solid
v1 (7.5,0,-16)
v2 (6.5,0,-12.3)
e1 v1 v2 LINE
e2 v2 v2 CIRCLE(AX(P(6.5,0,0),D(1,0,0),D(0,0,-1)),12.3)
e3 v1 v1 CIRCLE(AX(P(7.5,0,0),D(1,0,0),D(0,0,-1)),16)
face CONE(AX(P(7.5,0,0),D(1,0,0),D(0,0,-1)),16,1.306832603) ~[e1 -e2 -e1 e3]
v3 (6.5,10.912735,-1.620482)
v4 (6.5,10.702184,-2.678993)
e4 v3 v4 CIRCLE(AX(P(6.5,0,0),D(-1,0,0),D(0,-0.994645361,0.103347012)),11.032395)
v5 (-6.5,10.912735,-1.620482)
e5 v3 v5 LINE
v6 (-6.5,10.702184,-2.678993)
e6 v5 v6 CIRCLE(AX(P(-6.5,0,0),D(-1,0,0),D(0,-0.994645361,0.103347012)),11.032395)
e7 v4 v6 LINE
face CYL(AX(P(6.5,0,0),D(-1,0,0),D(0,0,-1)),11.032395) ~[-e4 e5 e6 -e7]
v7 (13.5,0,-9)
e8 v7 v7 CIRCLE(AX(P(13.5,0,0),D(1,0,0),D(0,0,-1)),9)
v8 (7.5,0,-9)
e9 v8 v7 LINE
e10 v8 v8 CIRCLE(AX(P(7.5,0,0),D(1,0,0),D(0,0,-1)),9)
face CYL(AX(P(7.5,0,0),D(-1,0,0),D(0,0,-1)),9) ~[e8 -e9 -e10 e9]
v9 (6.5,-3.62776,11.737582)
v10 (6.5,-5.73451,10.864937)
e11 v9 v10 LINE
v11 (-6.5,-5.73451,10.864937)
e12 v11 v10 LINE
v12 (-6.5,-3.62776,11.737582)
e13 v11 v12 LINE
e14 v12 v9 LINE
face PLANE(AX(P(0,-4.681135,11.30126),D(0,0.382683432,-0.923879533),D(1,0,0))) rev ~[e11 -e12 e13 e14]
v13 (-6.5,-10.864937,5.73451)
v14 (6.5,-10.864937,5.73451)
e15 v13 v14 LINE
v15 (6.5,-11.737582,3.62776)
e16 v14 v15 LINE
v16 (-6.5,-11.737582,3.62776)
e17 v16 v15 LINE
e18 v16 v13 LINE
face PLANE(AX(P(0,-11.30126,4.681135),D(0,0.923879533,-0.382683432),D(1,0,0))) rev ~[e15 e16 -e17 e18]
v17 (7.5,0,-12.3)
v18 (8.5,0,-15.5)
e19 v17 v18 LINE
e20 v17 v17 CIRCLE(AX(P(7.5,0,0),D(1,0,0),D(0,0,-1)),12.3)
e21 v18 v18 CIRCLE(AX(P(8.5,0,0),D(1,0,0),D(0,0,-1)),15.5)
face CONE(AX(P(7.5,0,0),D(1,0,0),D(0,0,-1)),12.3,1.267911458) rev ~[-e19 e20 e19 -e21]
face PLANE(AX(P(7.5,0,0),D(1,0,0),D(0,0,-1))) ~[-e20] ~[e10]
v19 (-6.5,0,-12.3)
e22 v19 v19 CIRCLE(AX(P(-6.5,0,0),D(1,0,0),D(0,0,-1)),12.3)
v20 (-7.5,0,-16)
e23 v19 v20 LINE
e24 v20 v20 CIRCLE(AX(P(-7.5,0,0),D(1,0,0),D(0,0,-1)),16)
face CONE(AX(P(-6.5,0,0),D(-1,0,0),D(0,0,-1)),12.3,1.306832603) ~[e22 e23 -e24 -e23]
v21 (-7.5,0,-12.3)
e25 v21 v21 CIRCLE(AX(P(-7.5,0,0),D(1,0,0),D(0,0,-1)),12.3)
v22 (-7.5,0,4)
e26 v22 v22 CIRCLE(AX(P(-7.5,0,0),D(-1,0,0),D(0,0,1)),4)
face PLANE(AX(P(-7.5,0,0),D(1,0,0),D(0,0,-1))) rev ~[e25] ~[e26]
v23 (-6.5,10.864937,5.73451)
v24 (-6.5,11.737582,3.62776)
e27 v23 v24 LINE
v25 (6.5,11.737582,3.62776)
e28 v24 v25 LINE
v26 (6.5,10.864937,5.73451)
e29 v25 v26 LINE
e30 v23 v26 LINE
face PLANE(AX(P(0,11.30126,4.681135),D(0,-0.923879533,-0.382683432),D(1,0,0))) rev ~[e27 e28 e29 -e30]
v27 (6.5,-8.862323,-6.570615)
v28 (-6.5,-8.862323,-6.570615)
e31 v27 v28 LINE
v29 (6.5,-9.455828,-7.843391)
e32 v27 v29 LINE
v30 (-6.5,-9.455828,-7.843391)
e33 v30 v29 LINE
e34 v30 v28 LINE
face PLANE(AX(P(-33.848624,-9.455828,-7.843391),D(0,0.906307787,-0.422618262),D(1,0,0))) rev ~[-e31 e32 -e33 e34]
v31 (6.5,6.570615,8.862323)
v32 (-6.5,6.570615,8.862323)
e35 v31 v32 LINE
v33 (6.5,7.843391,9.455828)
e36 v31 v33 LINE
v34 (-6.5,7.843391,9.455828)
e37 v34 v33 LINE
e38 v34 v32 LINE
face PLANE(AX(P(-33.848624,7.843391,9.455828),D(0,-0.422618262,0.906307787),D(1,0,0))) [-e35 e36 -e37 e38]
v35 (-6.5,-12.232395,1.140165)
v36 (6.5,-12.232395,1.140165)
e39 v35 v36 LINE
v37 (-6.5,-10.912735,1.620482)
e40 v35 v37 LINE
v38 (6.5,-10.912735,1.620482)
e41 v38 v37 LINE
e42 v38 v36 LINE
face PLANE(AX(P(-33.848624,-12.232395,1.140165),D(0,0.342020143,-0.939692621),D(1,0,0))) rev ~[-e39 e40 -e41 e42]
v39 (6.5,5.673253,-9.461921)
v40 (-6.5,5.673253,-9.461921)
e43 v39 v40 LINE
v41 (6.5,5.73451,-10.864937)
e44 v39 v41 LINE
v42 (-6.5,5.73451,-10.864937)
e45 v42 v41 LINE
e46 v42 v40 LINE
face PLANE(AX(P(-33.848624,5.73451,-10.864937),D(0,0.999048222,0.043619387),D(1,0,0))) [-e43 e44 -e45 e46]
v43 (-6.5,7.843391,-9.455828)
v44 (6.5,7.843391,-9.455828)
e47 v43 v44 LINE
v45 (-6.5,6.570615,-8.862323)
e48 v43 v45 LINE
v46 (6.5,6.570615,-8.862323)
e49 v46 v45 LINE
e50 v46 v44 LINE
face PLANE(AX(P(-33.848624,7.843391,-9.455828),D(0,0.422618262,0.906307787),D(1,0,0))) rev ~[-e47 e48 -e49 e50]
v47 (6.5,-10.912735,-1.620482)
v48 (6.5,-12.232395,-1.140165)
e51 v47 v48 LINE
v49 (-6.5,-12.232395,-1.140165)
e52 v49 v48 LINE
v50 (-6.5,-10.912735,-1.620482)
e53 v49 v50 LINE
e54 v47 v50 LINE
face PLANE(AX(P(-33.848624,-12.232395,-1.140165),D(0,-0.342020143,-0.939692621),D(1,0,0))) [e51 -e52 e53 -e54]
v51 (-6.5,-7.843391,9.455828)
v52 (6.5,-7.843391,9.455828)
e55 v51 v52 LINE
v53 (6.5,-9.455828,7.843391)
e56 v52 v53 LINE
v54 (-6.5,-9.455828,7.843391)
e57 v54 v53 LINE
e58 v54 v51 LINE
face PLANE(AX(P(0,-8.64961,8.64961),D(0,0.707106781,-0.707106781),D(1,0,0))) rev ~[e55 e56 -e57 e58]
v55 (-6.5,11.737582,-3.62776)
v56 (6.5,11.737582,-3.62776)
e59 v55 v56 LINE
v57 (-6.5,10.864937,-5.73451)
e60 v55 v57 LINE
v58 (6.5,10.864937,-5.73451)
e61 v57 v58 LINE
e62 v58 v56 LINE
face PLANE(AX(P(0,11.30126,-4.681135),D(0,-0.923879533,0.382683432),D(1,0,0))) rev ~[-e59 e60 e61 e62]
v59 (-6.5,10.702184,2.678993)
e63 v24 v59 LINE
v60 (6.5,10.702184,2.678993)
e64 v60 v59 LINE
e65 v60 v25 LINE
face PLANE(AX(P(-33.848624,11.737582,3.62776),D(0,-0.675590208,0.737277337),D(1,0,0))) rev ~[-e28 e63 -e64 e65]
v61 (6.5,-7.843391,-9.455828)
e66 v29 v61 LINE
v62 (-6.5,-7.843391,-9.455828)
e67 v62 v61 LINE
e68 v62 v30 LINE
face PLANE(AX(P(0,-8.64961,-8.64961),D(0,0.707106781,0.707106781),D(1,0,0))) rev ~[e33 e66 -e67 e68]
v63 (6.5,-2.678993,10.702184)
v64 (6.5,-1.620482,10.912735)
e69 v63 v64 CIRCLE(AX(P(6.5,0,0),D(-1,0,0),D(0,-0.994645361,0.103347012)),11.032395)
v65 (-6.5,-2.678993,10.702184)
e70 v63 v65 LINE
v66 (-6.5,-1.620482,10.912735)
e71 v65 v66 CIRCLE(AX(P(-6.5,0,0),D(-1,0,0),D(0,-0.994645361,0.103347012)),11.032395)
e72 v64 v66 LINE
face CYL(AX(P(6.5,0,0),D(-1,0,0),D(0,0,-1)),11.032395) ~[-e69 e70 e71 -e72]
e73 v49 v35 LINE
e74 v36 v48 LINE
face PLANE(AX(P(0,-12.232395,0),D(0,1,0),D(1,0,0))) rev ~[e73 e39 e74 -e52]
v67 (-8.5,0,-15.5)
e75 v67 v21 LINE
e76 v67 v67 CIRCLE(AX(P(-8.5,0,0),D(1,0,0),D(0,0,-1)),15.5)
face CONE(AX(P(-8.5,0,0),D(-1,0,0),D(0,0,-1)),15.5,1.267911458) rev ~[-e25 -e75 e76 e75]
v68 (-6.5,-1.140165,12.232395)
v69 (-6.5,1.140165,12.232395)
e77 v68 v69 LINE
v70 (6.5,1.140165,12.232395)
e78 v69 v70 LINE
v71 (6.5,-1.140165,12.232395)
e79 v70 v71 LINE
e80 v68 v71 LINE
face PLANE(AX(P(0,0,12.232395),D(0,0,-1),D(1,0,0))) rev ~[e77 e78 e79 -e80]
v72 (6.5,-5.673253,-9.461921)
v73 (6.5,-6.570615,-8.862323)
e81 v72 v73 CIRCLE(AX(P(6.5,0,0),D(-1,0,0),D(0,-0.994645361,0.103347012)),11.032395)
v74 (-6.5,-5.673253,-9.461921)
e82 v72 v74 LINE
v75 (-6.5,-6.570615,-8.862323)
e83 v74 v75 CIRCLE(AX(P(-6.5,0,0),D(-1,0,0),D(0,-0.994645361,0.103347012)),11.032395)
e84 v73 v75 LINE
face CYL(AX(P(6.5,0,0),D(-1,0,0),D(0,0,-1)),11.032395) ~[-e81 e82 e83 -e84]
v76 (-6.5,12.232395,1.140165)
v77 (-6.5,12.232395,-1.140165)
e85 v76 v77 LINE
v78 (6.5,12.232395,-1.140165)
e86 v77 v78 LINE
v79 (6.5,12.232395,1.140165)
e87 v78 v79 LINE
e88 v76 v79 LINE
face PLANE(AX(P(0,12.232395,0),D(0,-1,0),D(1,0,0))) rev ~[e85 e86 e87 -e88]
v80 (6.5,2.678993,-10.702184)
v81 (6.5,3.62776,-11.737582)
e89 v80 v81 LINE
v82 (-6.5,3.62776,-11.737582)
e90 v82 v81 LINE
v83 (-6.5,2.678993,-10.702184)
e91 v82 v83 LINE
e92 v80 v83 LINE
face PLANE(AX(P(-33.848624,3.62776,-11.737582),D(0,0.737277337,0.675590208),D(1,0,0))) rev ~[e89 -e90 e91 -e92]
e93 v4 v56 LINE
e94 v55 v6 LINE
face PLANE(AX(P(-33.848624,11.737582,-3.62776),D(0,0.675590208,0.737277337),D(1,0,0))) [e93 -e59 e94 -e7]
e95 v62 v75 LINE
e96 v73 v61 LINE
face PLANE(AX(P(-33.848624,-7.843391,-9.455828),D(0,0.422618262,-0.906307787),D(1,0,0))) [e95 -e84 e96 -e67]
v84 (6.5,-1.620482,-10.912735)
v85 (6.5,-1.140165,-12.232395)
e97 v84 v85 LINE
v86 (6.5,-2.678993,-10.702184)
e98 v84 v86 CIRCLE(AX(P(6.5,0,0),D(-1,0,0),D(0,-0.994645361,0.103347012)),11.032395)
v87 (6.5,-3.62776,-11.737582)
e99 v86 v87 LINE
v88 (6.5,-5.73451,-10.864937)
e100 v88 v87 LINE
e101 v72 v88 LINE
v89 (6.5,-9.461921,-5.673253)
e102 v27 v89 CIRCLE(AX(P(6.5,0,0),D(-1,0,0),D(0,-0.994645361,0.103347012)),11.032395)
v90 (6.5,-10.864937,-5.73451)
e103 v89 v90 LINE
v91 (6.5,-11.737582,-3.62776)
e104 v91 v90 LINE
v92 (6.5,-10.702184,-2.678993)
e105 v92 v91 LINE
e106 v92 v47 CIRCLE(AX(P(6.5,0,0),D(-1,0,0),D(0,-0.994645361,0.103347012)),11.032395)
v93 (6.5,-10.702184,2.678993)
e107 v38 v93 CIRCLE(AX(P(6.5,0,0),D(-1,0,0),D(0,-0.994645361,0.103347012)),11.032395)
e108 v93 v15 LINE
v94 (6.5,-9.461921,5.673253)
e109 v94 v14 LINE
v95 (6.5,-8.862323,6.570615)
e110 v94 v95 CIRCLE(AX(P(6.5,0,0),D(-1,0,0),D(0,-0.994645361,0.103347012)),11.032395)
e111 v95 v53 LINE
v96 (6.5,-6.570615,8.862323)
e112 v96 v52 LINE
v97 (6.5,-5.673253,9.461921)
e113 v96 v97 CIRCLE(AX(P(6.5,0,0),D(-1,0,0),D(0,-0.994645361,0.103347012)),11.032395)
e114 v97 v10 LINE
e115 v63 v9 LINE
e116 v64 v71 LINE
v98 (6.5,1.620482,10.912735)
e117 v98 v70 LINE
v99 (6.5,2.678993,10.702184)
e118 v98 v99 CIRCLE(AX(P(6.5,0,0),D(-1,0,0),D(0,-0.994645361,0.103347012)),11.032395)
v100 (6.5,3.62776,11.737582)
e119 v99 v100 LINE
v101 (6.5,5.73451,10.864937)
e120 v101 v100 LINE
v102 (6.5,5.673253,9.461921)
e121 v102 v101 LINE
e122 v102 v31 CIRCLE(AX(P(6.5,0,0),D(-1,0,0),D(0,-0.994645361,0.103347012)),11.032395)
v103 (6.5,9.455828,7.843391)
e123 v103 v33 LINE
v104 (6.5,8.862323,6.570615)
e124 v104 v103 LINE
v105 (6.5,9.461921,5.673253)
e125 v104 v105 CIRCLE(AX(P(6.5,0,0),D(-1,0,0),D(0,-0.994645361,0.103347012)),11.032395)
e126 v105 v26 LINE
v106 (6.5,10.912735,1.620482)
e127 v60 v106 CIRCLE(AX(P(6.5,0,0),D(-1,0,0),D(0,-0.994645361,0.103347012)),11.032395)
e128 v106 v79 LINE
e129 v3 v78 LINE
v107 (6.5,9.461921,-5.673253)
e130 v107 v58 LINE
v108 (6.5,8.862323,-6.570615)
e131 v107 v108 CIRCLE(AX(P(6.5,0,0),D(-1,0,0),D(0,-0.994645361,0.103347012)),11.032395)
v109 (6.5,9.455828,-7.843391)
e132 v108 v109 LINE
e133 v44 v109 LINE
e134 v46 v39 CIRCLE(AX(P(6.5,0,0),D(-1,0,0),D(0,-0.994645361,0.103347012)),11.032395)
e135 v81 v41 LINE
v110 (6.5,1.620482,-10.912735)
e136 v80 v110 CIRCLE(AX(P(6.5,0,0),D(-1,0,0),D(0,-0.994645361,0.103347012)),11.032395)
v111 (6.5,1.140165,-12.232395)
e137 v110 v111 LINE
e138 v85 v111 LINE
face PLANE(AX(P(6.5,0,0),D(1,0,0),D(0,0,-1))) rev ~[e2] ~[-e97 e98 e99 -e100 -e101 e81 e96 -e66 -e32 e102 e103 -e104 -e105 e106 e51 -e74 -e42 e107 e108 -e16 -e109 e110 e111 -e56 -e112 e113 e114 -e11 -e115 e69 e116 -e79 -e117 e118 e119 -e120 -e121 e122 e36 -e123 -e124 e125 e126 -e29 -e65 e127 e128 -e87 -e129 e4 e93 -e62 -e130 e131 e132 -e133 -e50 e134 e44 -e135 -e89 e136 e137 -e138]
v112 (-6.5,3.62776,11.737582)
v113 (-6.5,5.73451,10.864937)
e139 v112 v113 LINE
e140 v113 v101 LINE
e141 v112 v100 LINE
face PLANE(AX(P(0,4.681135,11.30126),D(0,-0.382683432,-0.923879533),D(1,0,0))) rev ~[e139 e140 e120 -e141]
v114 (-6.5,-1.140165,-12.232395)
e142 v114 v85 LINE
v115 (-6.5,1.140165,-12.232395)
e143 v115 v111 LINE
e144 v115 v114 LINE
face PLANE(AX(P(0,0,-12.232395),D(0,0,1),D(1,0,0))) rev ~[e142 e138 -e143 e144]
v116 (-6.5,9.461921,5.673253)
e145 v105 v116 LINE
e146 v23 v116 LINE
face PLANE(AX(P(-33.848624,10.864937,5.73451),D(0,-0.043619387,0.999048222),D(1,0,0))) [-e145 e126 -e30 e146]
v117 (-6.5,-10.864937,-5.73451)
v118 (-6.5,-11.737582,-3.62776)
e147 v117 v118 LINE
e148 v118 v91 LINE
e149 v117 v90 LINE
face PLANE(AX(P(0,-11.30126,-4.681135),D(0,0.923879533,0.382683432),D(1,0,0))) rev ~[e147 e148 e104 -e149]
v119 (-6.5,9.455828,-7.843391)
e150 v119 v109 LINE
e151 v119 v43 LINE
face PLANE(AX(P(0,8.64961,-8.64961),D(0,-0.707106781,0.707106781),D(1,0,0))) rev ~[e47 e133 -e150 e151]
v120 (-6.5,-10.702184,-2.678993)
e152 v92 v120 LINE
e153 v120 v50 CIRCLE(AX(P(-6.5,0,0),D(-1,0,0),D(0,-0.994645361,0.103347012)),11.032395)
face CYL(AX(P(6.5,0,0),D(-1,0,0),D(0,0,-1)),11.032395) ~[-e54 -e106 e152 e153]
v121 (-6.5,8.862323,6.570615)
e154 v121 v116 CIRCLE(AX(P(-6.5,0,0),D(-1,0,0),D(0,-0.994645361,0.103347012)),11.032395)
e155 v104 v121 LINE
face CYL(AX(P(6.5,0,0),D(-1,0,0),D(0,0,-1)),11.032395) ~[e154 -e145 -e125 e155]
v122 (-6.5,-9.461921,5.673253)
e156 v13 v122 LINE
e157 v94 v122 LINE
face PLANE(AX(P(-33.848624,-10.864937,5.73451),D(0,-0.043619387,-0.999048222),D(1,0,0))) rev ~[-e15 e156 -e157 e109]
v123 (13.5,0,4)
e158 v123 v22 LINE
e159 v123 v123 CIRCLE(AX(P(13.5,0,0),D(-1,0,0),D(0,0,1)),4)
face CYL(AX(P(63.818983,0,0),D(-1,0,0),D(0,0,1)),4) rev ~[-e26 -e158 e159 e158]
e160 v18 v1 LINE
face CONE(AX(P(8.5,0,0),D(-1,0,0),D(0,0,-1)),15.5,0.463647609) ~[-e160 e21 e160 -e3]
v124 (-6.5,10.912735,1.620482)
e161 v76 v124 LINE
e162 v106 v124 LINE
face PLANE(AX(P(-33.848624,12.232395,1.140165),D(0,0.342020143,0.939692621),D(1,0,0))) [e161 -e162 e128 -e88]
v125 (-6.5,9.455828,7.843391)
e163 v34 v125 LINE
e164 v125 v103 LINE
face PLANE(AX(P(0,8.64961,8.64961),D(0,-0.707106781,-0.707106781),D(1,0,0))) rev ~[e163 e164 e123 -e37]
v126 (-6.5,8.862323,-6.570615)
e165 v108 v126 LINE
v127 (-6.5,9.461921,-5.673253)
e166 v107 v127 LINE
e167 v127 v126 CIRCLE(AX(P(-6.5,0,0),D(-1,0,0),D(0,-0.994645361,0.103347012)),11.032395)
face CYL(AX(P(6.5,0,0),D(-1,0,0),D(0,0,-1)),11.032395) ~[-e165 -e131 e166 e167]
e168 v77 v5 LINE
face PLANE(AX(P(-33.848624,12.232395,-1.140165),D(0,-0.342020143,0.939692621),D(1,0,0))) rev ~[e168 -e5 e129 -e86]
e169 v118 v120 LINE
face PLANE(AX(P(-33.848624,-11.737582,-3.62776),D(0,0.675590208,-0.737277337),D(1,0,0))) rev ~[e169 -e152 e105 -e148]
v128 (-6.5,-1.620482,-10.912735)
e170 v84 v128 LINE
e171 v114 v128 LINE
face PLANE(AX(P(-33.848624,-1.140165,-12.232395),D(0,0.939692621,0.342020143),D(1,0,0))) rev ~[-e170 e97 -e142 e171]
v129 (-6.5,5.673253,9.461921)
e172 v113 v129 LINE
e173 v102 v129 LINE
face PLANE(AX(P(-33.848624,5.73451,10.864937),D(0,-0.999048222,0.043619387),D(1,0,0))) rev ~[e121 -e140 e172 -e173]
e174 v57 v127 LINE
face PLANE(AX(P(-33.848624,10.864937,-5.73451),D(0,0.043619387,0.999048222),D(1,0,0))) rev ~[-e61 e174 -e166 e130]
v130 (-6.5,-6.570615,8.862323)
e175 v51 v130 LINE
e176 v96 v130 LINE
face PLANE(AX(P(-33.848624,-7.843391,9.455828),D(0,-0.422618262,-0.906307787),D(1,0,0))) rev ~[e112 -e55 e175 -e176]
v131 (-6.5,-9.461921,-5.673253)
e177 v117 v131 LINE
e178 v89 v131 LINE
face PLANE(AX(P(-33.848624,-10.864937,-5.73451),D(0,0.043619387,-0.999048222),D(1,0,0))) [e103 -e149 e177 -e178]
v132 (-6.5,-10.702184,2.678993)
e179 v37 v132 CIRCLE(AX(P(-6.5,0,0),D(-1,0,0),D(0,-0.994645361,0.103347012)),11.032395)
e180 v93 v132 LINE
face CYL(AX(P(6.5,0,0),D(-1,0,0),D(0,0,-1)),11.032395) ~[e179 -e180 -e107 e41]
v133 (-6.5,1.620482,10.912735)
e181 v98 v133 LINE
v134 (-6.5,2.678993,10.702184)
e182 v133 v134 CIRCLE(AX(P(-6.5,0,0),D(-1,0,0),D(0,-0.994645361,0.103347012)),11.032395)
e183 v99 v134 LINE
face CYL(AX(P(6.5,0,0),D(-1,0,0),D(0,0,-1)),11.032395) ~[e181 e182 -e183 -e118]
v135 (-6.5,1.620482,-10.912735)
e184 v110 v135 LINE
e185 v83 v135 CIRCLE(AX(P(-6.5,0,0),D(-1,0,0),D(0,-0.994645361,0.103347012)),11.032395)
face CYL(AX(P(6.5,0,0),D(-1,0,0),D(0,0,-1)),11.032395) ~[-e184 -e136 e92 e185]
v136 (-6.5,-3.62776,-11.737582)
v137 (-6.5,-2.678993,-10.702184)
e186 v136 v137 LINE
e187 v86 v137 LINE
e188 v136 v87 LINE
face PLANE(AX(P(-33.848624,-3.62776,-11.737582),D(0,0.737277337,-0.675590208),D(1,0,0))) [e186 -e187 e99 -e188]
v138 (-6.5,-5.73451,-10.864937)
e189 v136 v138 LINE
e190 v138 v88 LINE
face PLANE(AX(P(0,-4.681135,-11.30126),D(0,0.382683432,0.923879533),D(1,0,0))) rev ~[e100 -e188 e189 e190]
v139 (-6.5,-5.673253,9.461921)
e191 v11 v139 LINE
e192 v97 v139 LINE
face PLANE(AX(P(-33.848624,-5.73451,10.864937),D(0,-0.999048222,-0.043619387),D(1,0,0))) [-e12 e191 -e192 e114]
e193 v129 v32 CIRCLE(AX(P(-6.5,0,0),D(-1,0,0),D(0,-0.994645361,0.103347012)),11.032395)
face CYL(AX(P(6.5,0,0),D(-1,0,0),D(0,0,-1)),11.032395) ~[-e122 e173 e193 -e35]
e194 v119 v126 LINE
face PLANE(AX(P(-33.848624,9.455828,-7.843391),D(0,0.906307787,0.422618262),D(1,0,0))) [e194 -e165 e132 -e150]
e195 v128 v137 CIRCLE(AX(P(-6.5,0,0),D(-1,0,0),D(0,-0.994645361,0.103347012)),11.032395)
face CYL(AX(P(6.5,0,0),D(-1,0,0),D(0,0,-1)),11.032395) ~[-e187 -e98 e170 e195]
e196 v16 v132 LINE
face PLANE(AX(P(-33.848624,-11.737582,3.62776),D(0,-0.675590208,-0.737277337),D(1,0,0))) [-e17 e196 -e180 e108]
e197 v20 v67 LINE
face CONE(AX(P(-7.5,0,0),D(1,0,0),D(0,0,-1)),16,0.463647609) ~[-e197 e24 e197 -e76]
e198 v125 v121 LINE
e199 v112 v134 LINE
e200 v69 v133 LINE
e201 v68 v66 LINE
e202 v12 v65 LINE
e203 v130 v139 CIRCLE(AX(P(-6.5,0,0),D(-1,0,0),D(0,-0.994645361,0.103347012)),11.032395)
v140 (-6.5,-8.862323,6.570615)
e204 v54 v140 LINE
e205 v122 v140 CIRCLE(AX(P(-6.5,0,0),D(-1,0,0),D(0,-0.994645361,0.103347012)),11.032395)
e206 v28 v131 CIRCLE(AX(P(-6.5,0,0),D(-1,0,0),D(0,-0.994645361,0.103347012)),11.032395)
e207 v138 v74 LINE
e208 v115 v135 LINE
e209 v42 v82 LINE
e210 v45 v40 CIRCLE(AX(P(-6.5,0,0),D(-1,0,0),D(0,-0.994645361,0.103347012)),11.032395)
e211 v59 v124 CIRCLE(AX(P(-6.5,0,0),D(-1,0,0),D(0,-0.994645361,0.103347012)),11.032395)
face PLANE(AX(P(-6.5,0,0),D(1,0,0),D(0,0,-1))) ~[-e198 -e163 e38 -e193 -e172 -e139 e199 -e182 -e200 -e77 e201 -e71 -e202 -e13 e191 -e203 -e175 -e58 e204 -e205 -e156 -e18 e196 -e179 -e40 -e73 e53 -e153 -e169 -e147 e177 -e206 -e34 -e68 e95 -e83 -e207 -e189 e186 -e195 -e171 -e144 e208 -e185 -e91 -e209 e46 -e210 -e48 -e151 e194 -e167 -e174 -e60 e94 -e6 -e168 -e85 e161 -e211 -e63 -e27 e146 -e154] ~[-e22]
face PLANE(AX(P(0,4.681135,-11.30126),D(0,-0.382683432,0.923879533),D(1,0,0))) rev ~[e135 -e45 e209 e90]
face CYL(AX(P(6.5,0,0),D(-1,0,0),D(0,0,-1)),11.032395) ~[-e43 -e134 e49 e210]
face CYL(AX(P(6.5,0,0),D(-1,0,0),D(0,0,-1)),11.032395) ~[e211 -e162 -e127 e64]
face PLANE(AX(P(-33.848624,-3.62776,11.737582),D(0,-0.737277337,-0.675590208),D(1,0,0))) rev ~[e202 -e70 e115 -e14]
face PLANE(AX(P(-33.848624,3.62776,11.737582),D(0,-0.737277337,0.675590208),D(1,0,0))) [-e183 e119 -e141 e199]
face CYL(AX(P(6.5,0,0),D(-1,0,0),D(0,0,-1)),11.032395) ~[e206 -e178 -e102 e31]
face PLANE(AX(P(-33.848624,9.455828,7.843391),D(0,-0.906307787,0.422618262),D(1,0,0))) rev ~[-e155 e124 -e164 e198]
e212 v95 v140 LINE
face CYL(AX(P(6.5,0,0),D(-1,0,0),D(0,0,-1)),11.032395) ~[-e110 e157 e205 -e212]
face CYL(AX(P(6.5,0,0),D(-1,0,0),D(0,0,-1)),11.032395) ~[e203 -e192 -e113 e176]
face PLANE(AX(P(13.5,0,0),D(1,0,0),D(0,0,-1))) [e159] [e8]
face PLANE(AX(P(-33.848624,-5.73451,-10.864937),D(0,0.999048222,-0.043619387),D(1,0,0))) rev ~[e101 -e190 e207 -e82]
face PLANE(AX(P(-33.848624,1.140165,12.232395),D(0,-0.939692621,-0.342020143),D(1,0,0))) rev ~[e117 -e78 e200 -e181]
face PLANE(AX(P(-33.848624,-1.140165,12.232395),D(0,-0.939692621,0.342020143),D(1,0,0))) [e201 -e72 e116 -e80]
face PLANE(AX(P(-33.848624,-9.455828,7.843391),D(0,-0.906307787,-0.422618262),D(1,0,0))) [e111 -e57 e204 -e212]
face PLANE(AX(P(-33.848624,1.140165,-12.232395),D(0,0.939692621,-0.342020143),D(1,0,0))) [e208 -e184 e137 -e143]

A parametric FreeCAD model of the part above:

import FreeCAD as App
import Part
import Sketcher
from FreeCAD import Vector
Q = App.Units.Quantity


def faces_at(feature, points):
    """Names of the faces that lie closest to the given points."""
    faces = feature.Shape.Faces
    near = lambda p: min(range(len(faces)), key=lambda i: faces[i].distToShape(Part.Vertex(*p))[0])
    return sorted({f"Face{near(p) + 1}" for p in points})


def add_polygon(sketch, points):
    """Adds a closed chain of lines whose ends are joined by coincident constraints."""
    first, n = sketch.GeometryCount, len(points)
    for a, b in zip(points, points[1:] + points[:1]):
        sketch.addGeometry(Part.LineSegment(App.Vector(*a, 0), App.Vector(*b, 0)), False)
    for i in range(n):
        sketch.addConstraint(Sketcher.Constraint("Coincident", first + i, 2, first + (i + 1) % n, 1))

doc = App.newDocument("Part")
body = doc.addObject("PartDesign::Body", "Body")

# Sketch on XY plane
sketch1 = body.newObject("Sketcher::SketchObject", "Sketch")
sketch1.AttachmentSupport = (doc.getObject("XY_Plane"), [""])
sketch1.MapMode = "FlatFace"
add_polygon(sketch1, [(-7.5, 12.3), (-7.5, 0), (7.5, 0), (7.5, 12.3), (8.5, 15.5), (7.5, 16), (6.5, 12.3), (6.5, 11), (-6.5, 11), (-6.5, 12.3), (-7.5, 16), (-8.5, 15.5)])  # lines 0-11
sketch1.addConstraint(Sketcher.Constraint("Vertical", 0))
sketch1.addConstraint(Sketcher.Constraint("Horizontal", 1))
sketch1.addConstraint(Sketcher.Constraint("Vertical", 2))
sketch1.addConstraint(Sketcher.Constraint("Vertical", 6))
sketch1.addConstraint(Sketcher.Constraint("Horizontal", 7))
sketch1.addConstraint(Sketcher.Constraint("Vertical", 8))
sketch1.addConstraint(Sketcher.Constraint("Symmetric", 0, 2, 1, 2, -1, 1))
sketch1.addConstraint(Sketcher.Constraint("Symmetric", 5, 2, 8, 2, -2))
sketch1.addConstraint(Sketcher.Constraint("Symmetric", 4, 2, 9, 2, -2))
sketch1.addConstraint(Sketcher.Constraint("Symmetric", 3, 2, 10, 2, -2))
sketch1.addConstraint(Sketcher.Constraint("Horizontal", 2, 2, 5, 2))
sketch1.addConstraint(Sketcher.Constraint("Horizontal", 8, 2, 11, 2))
sketch1.addConstraint(Sketcher.Constraint("Vertical", 2, 2, 4, 2))
sketch1.addConstraint(Sketcher.Constraint("DistanceX", 1, 1, 1, 2, Q("15 mm")))
sketch1.addConstraint(Sketcher.Constraint("DistanceX", 7, 2, 7, 1, Q("13 mm")))
sketch1.addConstraint(Sketcher.Constraint("DistanceY", 0, 2, 0, 1, Q("12.3 mm")))
sketch1.addConstraint(Sketcher.Constraint("DistanceY", -1, 1, 4, 2, Q("16 mm")))
sketch1.addConstraint(Sketcher.Constraint("DistanceX", 2, 2, 3, 2, Q("1 mm")))
sketch1.addConstraint(Sketcher.Constraint("DistanceY", -1, 1, 3, 2, Q("15.5 mm")))
sketch1.addConstraint(Sketcher.Constraint("DistanceY", 6, 2, 6, 1, Q("1.267605 mm")))
revolution = body.newObject("PartDesign::Revolution", "Revolution")
revolution.Profile = sketch1
revolution.ReferenceAxis = (sketch1, ["H_Axis"])
revolution.Angle = 360

# Sketch on YZ plane
sketch2 = body.newObject("Sketcher::SketchObject", "Sketch001")
sketch2.AttachmentSupport = (doc.getObject("YZ_Plane"), [""])
sketch2.MapMode = "FlatFace"
sketch2.AttachmentOffset = App.Placement(Vector(0, 0, 7.5), App.Rotation())
sketch2.addGeometry(Part.Circle(Vector(0, 0, 0), Vector(0, 0, 1), 9), False)
sketch2.addConstraint(Sketcher.Constraint("Coincident", 0, 3, -1, 1))
sketch2.addConstraint(Sketcher.Constraint("Diameter", 0, Q("18 mm")))
pad1 = body.newObject("PartDesign::Pad", "Pad")
pad1.Profile = sketch2
pad1.Length = 6

# Sketch on YZ plane
sketch3 = body.newObject("Sketcher::SketchObject", "Sketch002")
sketch3.AttachmentSupport = (doc.getObject("YZ_Plane"), [""])
sketch3.MapMode = "FlatFace"
sketch3.AttachmentOffset = App.Placement(Vector(0, 0, 13.5), App.Rotation())
sketch3.addGeometry(Part.Circle(Vector(0, 0, 0), Vector(0, 0, 1), 4), False)
sketch3.addConstraint(Sketcher.Constraint("Coincident", 0, 3, -1, 1))
sketch3.addConstraint(Sketcher.Constraint("Diameter", 0, Q("8 mm")))
doc.recompute()
hole = body.newObject("PartDesign::Hole", "Hole")
hole.Profile = sketch3
hole.ThreadType = "None"
hole.Diameter = 8
hole.DepthType = "ThroughAll"

# Sketch on XZ plane
sketch4 = body.newObject("Sketcher::SketchObject", "Sketch003")
sketch4.AttachmentSupport = (doc.getObject("XZ_Plane"), [""])
sketch4.MapMode = "FlatFace"
sketch4.AttachmentOffset = App.Placement(Vector(0, 0, 12.232395), App.Rotation())
add_polygon(sketch4, [(-33.8, -1.1), (-33.8, 1.1), (33.8, 1.1), (33.8, -1.1)])  # lines 0-3
sketch4.addConstraint(Sketcher.Constraint("Vertical", 0))
sketch4.addConstraint(Sketcher.Constraint("Horizontal", 1))
sketch4.addConstraint(Sketcher.Constraint("Vertical", 2))
sketch4.addConstraint(Sketcher.Constraint("Horizontal", 3))
sketch4.addConstraint(Sketcher.Constraint("Symmetric", 0, 2, 2, 2, -1, 1))
sketch4.addConstraint(Sketcher.Constraint("DistanceX", 1, 1, 1, 2, Q("67.697249 mm")))
sketch4.addConstraint(Sketcher.Constraint("DistanceY", 0, 1, 0, 2, Q("2.28033 mm")))
pad2 = body.newObject("PartDesign::Pad", "Pad001")
pad2.Profile = sketch4
pad2.Type = "UpToFirst"
pad2.Reversed = True
doc.recompute()

datumplane = body.newObject("PartDesign::Plane", "DatumPlane")
datumplane.AttachmentSupport = (doc.getObject("XZ_Plane"), [""])
datumplane.MapMode = "FlatFace"
datumplane.AttachmentOffset = App.Placement(Vector(0, 0, 12.232395), App.Rotation())
draft = body.newObject("PartDesign::Draft", "Draft")
draft.Base = (pad2, faces_at(pad2, [(0, -11.603, -1.14), (0, -11.603, 1.14)]))
draft.NeutralPlane = (datumplane, [""])
draft.Angle = 20
draft.Reversed = False

# Sketch on XY plane
sketch5 = body.newObject("Sketcher::SketchObject", "Sketch004")
sketch5.AttachmentSupport = (doc.getObject("XY_Plane"), [""])
sketch5.MapMode = "FlatFace"
sketch5.AttachmentOffset = App.Placement(Vector(0, 0, -12.232395), App.Rotation())
add_polygon(sketch5, [(-33.8, 1.1), (-33.8, -1.1), (33.8, -1.1), (33.8, 1.1)])  # lines 0-3
sketch5.addConstraint(Sketcher.Constraint("Vertical", 0))
sketch5.addConstraint(Sketcher.Constraint("Horizontal", 1))
sketch5.addConstraint(Sketcher.Constraint("Vertical", 2))
sketch5.addConstraint(Sketcher.Constraint("Horizontal", 3))
sketch5.addConstraint(Sketcher.Constraint("Symmetric", 0, 2, 2, 2, -1, 1))
sketch5.addConstraint(Sketcher.Constraint("DistanceX", 1, 1, 1, 2, Q("67.697249 mm")))
sketch5.addConstraint(Sketcher.Constraint("DistanceY", 0, 2, 0, 1, Q("2.28033 mm")))
pad3 = body.newObject("PartDesign::Pad", "Pad002")
pad3.Profile = sketch5
pad3.Type = "UpToFirst"
doc.recompute()

datumplane2 = body.newObject("PartDesign::Plane", "DatumPlane001")
datumplane2.AttachmentSupport = (doc.getObject("XY_Plane"), [""])
datumplane2.MapMode = "FlatFace"
datumplane2.AttachmentOffset = App.Placement(Vector(0, 0, -12.232395), App.Rotation())
draft2 = body.newObject("PartDesign::Draft", "Draft001")
draft2.Base = (pad3, faces_at(pad3, [(0, 1.14, -11.603), (0, -1.14, -11.603)]))
draft2.NeutralPlane = (datumplane2, [""])
draft2.Angle = 20
draft2.Reversed = True

# Sketch on XZ plane
sketch6 = body.newObject("Sketcher::SketchObject", "Sketch005")
sketch6.AttachmentSupport = (doc.getObject("XZ_Plane"), [""])
sketch6.MapMode = "FlatFace"
sketch6.AttachmentOffset = App.Placement(Vector(0, 0, -12.232395), App.Rotation())
add_polygon(sketch6, [(-33.8, 1.1), (-33.8, -1.1), (33.8, -1.1), (33.8, 1.1)])  # lines 0-3
sketch6.addConstraint(Sketcher.Constraint("Vertical", 0))
sketch6.addConstraint(Sketcher.Constraint("Horizontal", 1))
sketch6.addConstraint(Sketcher.Constraint("Vertical", 2))
sketch6.addConstraint(Sketcher.Constraint("Horizontal", 3))
sketch6.addConstraint(Sketcher.Constraint("Symmetric", 0, 2, 2, 2, -1, 1))
sketch6.addConstraint(Sketcher.Constraint("DistanceX", 1, 1, 1, 2, Q("67.697249 mm")))
sketch6.addConstraint(Sketcher.Constraint("DistanceY", 0, 2, 0, 1, Q("2.28033 mm")))
pad4 = body.newObject("PartDesign::Pad", "Pad003")
pad4.Profile = sketch6
pad4.Type = "UpToFirst"
doc.recompute()

datumplane3 = body.newObject("PartDesign::Plane", "DatumPlane002")
datumplane3.AttachmentSupport = (doc.getObject("XZ_Plane"), [""])
datumplane3.MapMode = "FlatFace"
datumplane3.AttachmentOffset = App.Placement(Vector(0, 0, -12.232395), App.Rotation())
draft3 = body.newObject("PartDesign::Draft", "Draft002")
draft3.Base = (pad4, faces_at(pad4, [(0, 11.603, 1.14), (0, 11.603, -1.14)]))
draft3.NeutralPlane = (datumplane3, [""])
draft3.Angle = 20
draft3.Reversed = True

# Sketch on XY plane
sketch7 = body.newObject("Sketcher::SketchObject", "Sketch006")
sketch7.AttachmentSupport = (doc.getObject("XY_Plane"), [""])
sketch7.MapMode = "FlatFace"
sketch7.AttachmentOffset = App.Placement(Vector(0, 0, 12.232395), App.Rotation())
add_polygon(sketch7, [(-33.8, -1.1), (-33.8, 1.1), (33.8, 1.1), (33.8, -1.1)])  # lines 0-3
sketch7.addConstraint(Sketcher.Constraint("Vertical", 0))
sketch7.addConstraint(Sketcher.Constraint("Horizontal", 1))
sketch7.addConstraint(Sketcher.Constraint("Vertical", 2))
sketch7.addConstraint(Sketcher.Constraint("Horizontal", 3))
sketch7.addConstraint(Sketcher.Constraint("Symmetric", 0, 2, 2, 2, -1, 1))
sketch7.addConstraint(Sketcher.Constraint("DistanceX", 1, 1, 1, 2, Q("67.697249 mm")))
sketch7.addConstraint(Sketcher.Constraint("DistanceY", 0, 1, 0, 2, Q("2.28033 mm")))
pad5 = body.newObject("PartDesign::Pad", "Pad004")
pad5.Profile = sketch7
pad5.Type = "UpToFirst"
pad5.Reversed = True
doc.recompute()

datumplane4 = body.newObject("PartDesign::Plane", "DatumPlane003")
datumplane4.AttachmentSupport = (doc.getObject("XY_Plane"), [""])
datumplane4.MapMode = "FlatFace"
datumplane4.AttachmentOffset = App.Placement(Vector(0, 0, 12.232395), App.Rotation())
draft4 = body.newObject("PartDesign::Draft", "Draft003")
draft4.Base = (pad5, faces_at(pad5, [(0, -1.14, 11.603), (0, 1.14, 11.603)]))
draft4.NeutralPlane = (datumplane4, [""])
draft4.Angle = 20
draft4.Reversed = False

# Sketch on an angled plane
sketch8 = body.newObject("Sketcher::SketchObject", "Sketch007")
sketch8.Placement = App.Placement(Vector(0, 8.64961, 8.64961), App.Rotation(Vector(1, 0, 0), Vector(0, -0.707106781, 0.707106781), Vector(0, -0.707106781, -0.707106781), "ZXY"))
add_polygon(sketch8, [(-33.8, 1.1), (-33.8, -1.1), (33.8, -1.1), (33.8, 1.1)])  # lines 0-3
sketch8.addConstraint(Sketcher.Constraint("Vertical", 0))
sketch8.addConstraint(Sketcher.Constraint("Horizontal", 1))
sketch8.addConstraint(Sketcher.Constraint("Vertical", 2))
sketch8.addConstraint(Sketcher.Constraint("Horizontal", 3))
sketch8.addConstraint(Sketcher.Constraint("Symmetric", 0, 2, 2, 2, -1, 1))
sketch8.addConstraint(Sketcher.Constraint("DistanceX", 1, 1, 1, 2, Q("67.697249 mm")))
sketch8.addConstraint(Sketcher.Constraint("DistanceY", 0, 2, 0, 1, Q("2.28033 mm")))
pad6 = body.newObject("PartDesign::Pad", "Pad005")
pad6.Profile = sketch8
pad6.Type = "UpToFirst"
doc.recompute()

datumplane5 = body.newObject("PartDesign::Plane", "DatumPlane004")
datumplane5.Placement = App.Placement(Vector(0, 8.64961, 8.64961), App.Rotation(Vector(0, 0.707106781, -0.707106781), Vector(-1, 0, 0), Vector(0, 0.707106781, 0.707106781), "ZXY"))
draft5 = body.newObject("PartDesign::Draft", "Draft004")
draft5.Base = (pad6, faces_at(pad6, [(0, 7.398, 9.011), (0, 9.011, 7.398)]))
draft5.NeutralPlane = (datumplane5, [""])
draft5.Angle = 20
draft5.Reversed = False

# Sketch on an angled plane
sketch9 = body.newObject("Sketcher::SketchObject", "Sketch008")
sketch9.Placement = App.Placement(Vector(0, 11.30126, 4.681135), App.Rotation(Vector(1, 0, 0), Vector(0, -0.382683432, 0.923879533), Vector(0, -0.923879533, -0.382683432), "ZXY"))
add_polygon(sketch9, [(-33.8, 1.1), (-33.8, -1.1), (33.8, -1.1), (33.8, 1.1)])  # lines 0-3
sketch9.addConstraint(Sketcher.Constraint("Vertical", 0))
sketch9.addConstraint(Sketcher.Constraint("Horizontal", 1))
sketch9.addConstraint(Sketcher.Constraint("Vertical", 2))
sketch9.addConstraint(Sketcher.Constraint("Horizontal", 3))
sketch9.addConstraint(Sketcher.Constraint("Symmetric", 0, 2, 2, 2, -1, 1))
sketch9.addConstraint(Sketcher.Constraint("DistanceX", 1, 1, 1, 2, Q("67.697249 mm")))
sketch9.addConstraint(Sketcher.Constraint("DistanceY", 0, 2, 0, 1, Q("2.28033 mm")))
pad7 = body.newObject("PartDesign::Pad", "Pad006")
pad7.Profile = sketch9
pad7.Type = "UpToFirst"
doc.recompute()

datumplane6 = body.newObject("PartDesign::Plane", "DatumPlane005")
datumplane6.Placement = App.Placement(Vector(0, 11.30126, 4.681135), App.Rotation(Vector(0, 0.382683432, -0.923879533), Vector(-1, 0, 0), Vector(0, 0.923879533, 0.382683432), "ZXY"))
draft6 = body.newObject("PartDesign::Draft", "Draft005")
draft6.Base = (pad7, faces_at(pad7, [(0, 10.283, 5.494), (0, 11.156, 3.387)]))
draft6.NeutralPlane = (datumplane6, [""])
draft6.Angle = 20
draft6.Reversed = False

# Sketch on an angled plane
sketch10 = body.newObject("Sketcher::SketchObject", "Sketch009")
sketch10.Placement = App.Placement(Vector(0, 4.681135, -11.30126), App.Rotation(Vector(1, 0, 0), Vector(0, 0.923879533, 0.382683432), Vector(0, -0.382683432, 0.923879533), "ZXY"))
add_polygon(sketch10, [(-33.8, 1.1), (-33.8, -1.1), (33.8, -1.1), (33.8, 1.1)])  # lines 0-3
sketch10.addConstraint(Sketcher.Constraint("Vertical", 0))
sketch10.addConstraint(Sketcher.Constraint("Horizontal", 1))
sketch10.addConstraint(Sketcher.Constraint("Vertical", 2))
sketch10.addConstraint(Sketcher.Constraint("Horizontal", 3))
sketch10.addConstraint(Sketcher.Constraint("Symmetric", 0, 2, 2, 2, -1, 1))
sketch10.addConstraint(Sketcher.Constraint("DistanceX", 1, 1, 1, 2, Q("67.697249 mm")))
sketch10.addConstraint(Sketcher.Constraint("DistanceY", 0, 2, 0, 1, Q("2.28033 mm")))
pad8 = body.newObject("PartDesign::Pad", "Pad007")
pad8.Profile = sketch10
pad8.Type = "UpToFirst"
doc.recompute()

datumplane7 = body.newObject("PartDesign::Plane", "DatumPlane006")
datumplane7.Placement = App.Placement(Vector(0, 4.681135, -11.30126), App.Rotation(Vector(0, -0.923879533, -0.382683432), Vector(-1, 0, 0), Vector(0, 0.382683432, -0.923879533), "ZXY"))
draft7 = body.newObject("PartDesign::Draft", "Draft006")
draft7.Base = (pad8, faces_at(pad8, [(0, 5.494, -10.283), (0, 3.387, -11.156)]))
draft7.NeutralPlane = (datumplane7, [""])
draft7.Angle = 20
draft7.Reversed = False

# Sketch on an angled plane
sketch11 = body.newObject("Sketcher::SketchObject", "Sketch010")
sketch11.Placement = App.Placement(Vector(0, 4.681135, 11.30126), App.Rotation(Vector(1, 0, 0), Vector(0, -0.923879533, 0.382683432), Vector(0, -0.382683432, -0.923879533), "ZXY"))
add_polygon(sketch11, [(-33.8, 1.1), (-33.8, -1.1), (33.8, -1.1), (33.8, 1.1)])  # lines 0-3
sketch11.addConstraint(Sketcher.Constraint("Vertical", 0))
sketch11.addConstraint(Sketcher.Constraint("Horizontal", 1))
sketch11.addConstraint(Sketcher.Constraint("Vertical", 2))
sketch11.addConstraint(Sketcher.Constraint("Horizontal", 3))
sketch11.addConstraint(Sketcher.Constraint("Symmetric", 0, 2, 2, 2, -1, 1))
sketch11.addConstraint(Sketcher.Constraint("DistanceX", 1, 1, 1, 2, Q("67.697249 mm")))
sketch11.addConstraint(Sketcher.Constraint("DistanceY", 0, 2, 0, 1, Q("2.28033 mm")))
pad9 = body.newObject("PartDesign::Pad", "Pad008")
pad9.Profile = sketch11
pad9.Type = "UpToFirst"
doc.recompute()

datumplane8 = body.newObject("PartDesign::Plane", "DatumPlane007")
datumplane8.Placement = App.Placement(Vector(0, 4.681135, 11.30126), App.Rotation(Vector(0, 0.923879533, -0.382683432), Vector(-1, 0, 0), Vector(0, 0.382683432, 0.923879533), "ZXY"))
draft8 = body.newObject("PartDesign::Draft", "Draft007")
draft8.Base = (pad9, faces_at(pad9, [(0, 3.387, 11.156), (0, 5.494, 10.283)]))
draft8.NeutralPlane = (datumplane8, [""])
draft8.Angle = 20
draft8.Reversed = False

# Sketch on an angled plane
sketch12 = body.newObject("Sketcher::SketchObject", "Sketch011")
sketch12.Placement = App.Placement(Vector(0, -8.64961, 8.64961), App.Rotation(Vector(1, 0, 0), Vector(0, -0.707106781, -0.707106781), Vector(0, 0.707106781, -0.707106781), "ZXY"))
add_polygon(sketch12, [(-33.8, 1.1), (-33.8, -1.1), (33.8, -1.1), (33.8, 1.1)])  # lines 0-3
sketch12.addConstraint(Sketcher.Constraint("Vertical", 0))
sketch12.addConstraint(Sketcher.Constraint("Horizontal", 1))
sketch12.addConstraint(Sketcher.Constraint("Vertical", 2))
sketch12.addConstraint(Sketcher.Constraint("Horizontal", 3))
sketch12.addConstraint(Sketcher.Constraint("Symmetric", 0, 2, 2, 2, -1, 1))
sketch12.addConstraint(Sketcher.Constraint("DistanceX", 1, 1, 1, 2, Q("67.697249 mm")))
sketch12.addConstraint(Sketcher.Constraint("DistanceY", 0, 2, 0, 1, Q("2.28033 mm")))
pad10 = body.newObject("PartDesign::Pad", "Pad009")
pad10.Profile = sketch12
pad10.Type = "UpToFirst"
doc.recompute()

datumplane9 = body.newObject("PartDesign::Plane", "DatumPlane008")
datumplane9.Placement = App.Placement(Vector(0, -8.64961, 8.64961), App.Rotation(Vector(0, 0.707106781, 0.707106781), Vector(-1, 0, 0), Vector(0, -0.707106781, 0.707106781), "ZXY"))
draft9 = body.newObject("PartDesign::Draft", "Draft008")
draft9.Base = (pad10, faces_at(pad10, [(0, -9.011, 7.398), (0, -7.398, 9.011)]))
draft9.NeutralPlane = (datumplane9, [""])
draft9.Angle = 20
draft9.Reversed = False

# Sketch on an angled plane
sketch13 = body.newObject("Sketcher::SketchObject", "Sketch012")
sketch13.Placement = App.Placement(Vector(0, 8.64961, -8.64961), App.Rotation(Vector(1, 0, 0), Vector(0, 0.707106781, 0.707106781), Vector(0, -0.707106781, 0.707106781), "ZXY"))
add_polygon(sketch13, [(-33.8, 1.1), (-33.8, -1.1), (33.8, -1.1), (33.8, 1.1)])  # lines 0-3
sketch13.addConstraint(Sketcher.Constraint("Vertical", 0))
sketch13.addConstraint(Sketcher.Constraint("Horizontal", 1))
sketch13.addConstraint(Sketcher.Constraint("Vertical", 2))
sketch13.addConstraint(Sketcher.Constraint("Horizontal", 3))
sketch13.addConstraint(Sketcher.Constraint("Symmetric", 0, 2, 2, 2, -1, 1))
sketch13.addConstraint(Sketcher.Constraint("DistanceX", 1, 1, 1, 2, Q("67.697249 mm")))
sketch13.addConstraint(Sketcher.Constraint("DistanceY", 0, 2, 0, 1, Q("2.28033 mm")))
pad11 = body.newObject("PartDesign::Pad", "Pad010")
pad11.Profile = sketch13
pad11.Type = "UpToFirst"
doc.recompute()

datumplane10 = body.newObject("PartDesign::Plane", "DatumPlane009")
datumplane10.Placement = App.Placement(Vector(0, 8.64961, -8.64961), App.Rotation(Vector(0, -0.707106781, -0.707106781), Vector(-1, 0, 0), Vector(0, 0.707106781, -0.707106781), "ZXY"))
draft10 = body.newObject("PartDesign::Draft", "Draft009")
draft10.Base = (pad11, faces_at(pad11, [(0, 9.011, -7.398), (0, 7.398, -9.011)]))
draft10.NeutralPlane = (datumplane10, [""])
draft10.Angle = 20
draft10.Reversed = False

# Sketch on an angled plane
sketch14 = body.newObject("Sketcher::SketchObject", "Sketch013")
sketch14.Placement = App.Placement(Vector(0, -8.64961, -8.64961), App.Rotation(Vector(1, 0, 0), Vector(0, 0.707106781, -0.707106781), Vector(0, 0.707106781, 0.707106781), "ZXY"))
add_polygon(sketch14, [(-33.8, 1.1), (-33.8, -1.1), (33.8, -1.1), (33.8, 1.1)])  # lines 0-3
sketch14.addConstraint(Sketcher.Constraint("Vertical", 0))
sketch14.addConstraint(Sketcher.Constraint("Horizontal", 1))
sketch14.addConstraint(Sketcher.Constraint("Vertical", 2))
sketch14.addConstraint(Sketcher.Constraint("Horizontal", 3))
sketch14.addConstraint(Sketcher.Constraint("Symmetric", 0, 2, 2, 2, -1, 1))
sketch14.addConstraint(Sketcher.Constraint("DistanceX", 1, 1, 1, 2, Q("67.697249 mm")))
sketch14.addConstraint(Sketcher.Constraint("DistanceY", 0, 2, 0, 1, Q("2.28033 mm")))
pad12 = body.newObject("PartDesign::Pad", "Pad011")
pad12.Profile = sketch14
pad12.Type = "UpToFirst"
doc.recompute()

datumplane11 = body.newObject("PartDesign::Plane", "DatumPlane010")
datumplane11.Placement = App.Placement(Vector(0, -8.64961, -8.64961), App.Rotation(Vector(0, -0.707106781, 0.707106781), Vector(-1, 0, 0), Vector(0, -0.707106781, -0.707106781), "ZXY"))
draft11 = body.newObject("PartDesign::Draft", "Draft010")
draft11.Base = (pad12, faces_at(pad12, [(0, -7.398, -9.011), (0, -9.011, -7.398)]))
draft11.NeutralPlane = (datumplane11, [""])
draft11.Angle = 20
draft11.Reversed = False

# Sketch on an angled plane
sketch15 = body.newObject("Sketcher::SketchObject", "Sketch014")
sketch15.Placement = App.Placement(Vector(0, 11.30126, -4.681135), App.Rotation(Vector(1, 0, 0), Vector(0, 0.382683432, 0.923879533), Vector(0, -0.923879533, 0.382683432), "ZXY"))
add_polygon(sketch15, [(-33.8, 1.1), (-33.8, -1.1), (33.8, -1.1), (33.8, 1.1)])  # lines 0-3
sketch15.addConstraint(Sketcher.Constraint("Vertical", 0))
sketch15.addConstraint(Sketcher.Constraint("Horizontal", 1))
sketch15.addConstraint(Sketcher.Constraint("Vertical", 2))
sketch15.addConstraint(Sketcher.Constraint("Horizontal", 3))
sketch15.addConstraint(Sketcher.Constraint("Symmetric", 0, 2, 2, 2, -1, 1))
sketch15.addConstraint(Sketcher.Constraint("DistanceX", 1, 1, 1, 2, Q("67.697249 mm")))
sketch15.addConstraint(Sketcher.Constraint("DistanceY", 0, 2, 0, 1, Q("2.28033 mm")))
pad13 = body.newObject("PartDesign::Pad", "Pad012")
pad13.Profile = sketch15
pad13.Type = "UpToFirst"
doc.recompute()

datumplane12 = body.newObject("PartDesign::Plane", "DatumPlane011")
datumplane12.Placement = App.Placement(Vector(0, 11.30126, -4.681135), App.Rotation(Vector(0, -0.382683432, -0.923879533), Vector(-1, 0, 0), Vector(0, 0.923879533, -0.382683432), "ZXY"))
draft12 = body.newObject("PartDesign::Draft", "Draft011")
draft12.Base = (pad13, faces_at(pad13, [(0, 11.156, -3.387), (0, 10.283, -5.494)]))
draft12.NeutralPlane = (datumplane12, [""])
draft12.Angle = 20
draft12.Reversed = False

# Sketch on an angled plane
sketch16 = body.newObject("Sketcher::SketchObject", "Sketch015")
sketch16.Placement = App.Placement(Vector(0, -11.30126, -4.681135), App.Rotation(Vector(1, 0, 0), Vector(0, 0.382683432, -0.923879533), Vector(0, 0.923879533, 0.382683432), "ZXY"))
add_polygon(sketch16, [(-33.8, 1.1), (-33.8, -1.1), (33.8, -1.1), (33.8, 1.1)])  # lines 0-3
sketch16.addConstraint(Sketcher.Constraint("Vertical", 0))
sketch16.addConstraint(Sketcher.Constraint("Horizontal", 1))
sketch16.addConstraint(Sketcher.Constraint("Vertical", 2))
sketch16.addConstraint(Sketcher.Constraint("Horizontal", 3))
sketch16.addConstraint(Sketcher.Constraint("Symmetric", 0, 2, 2, 2, -1, 1))
sketch16.addConstraint(Sketcher.Constraint("DistanceX", 1, 1, 1, 2, Q("67.697249 mm")))
sketch16.addConstraint(Sketcher.Constraint("DistanceY", 0, 2, 0, 1, Q("2.28033 mm")))
pad14 = body.newObject("PartDesign::Pad", "Pad013")
pad14.Profile = sketch16
pad14.Type = "UpToFirst"
doc.recompute()

datumplane13 = body.newObject("PartDesign::Plane", "DatumPlane012")
datumplane13.Placement = App.Placement(Vector(0, -11.30126, -4.681135), App.Rotation(Vector(0, -0.382683432, 0.923879533), Vector(-1, 0, 0), Vector(0, -0.923879533, -0.382683432), "ZXY"))
draft13 = body.newObject("PartDesign::Draft", "Draft012")
draft13.Base = (pad14, faces_at(pad14, [(0, -10.283, -5.494), (0, -11.156, -3.387)]))
draft13.NeutralPlane = (datumplane13, [""])
draft13.Angle = 20
draft13.Reversed = False

# Sketch on an angled plane
sketch17 = body.newObject("Sketcher::SketchObject", "Sketch016")
sketch17.Placement = App.Placement(Vector(0, -4.681135, 11.30126), App.Rotation(Vector(1, 0, 0), Vector(0, -0.923879533, -0.382683432), Vector(0, 0.382683432, -0.923879533), "ZXY"))
add_polygon(sketch17, [(-33.8, 1.1), (-33.8, -1.1), (33.8, -1.1), (33.8, 1.1)])  # lines 0-3
sketch17.addConstraint(Sketcher.Constraint("Vertical", 0))
sketch17.addConstraint(Sketcher.Constraint("Horizontal", 1))
sketch17.addConstraint(Sketcher.Constraint("Vertical", 2))
sketch17.addConstraint(Sketcher.Constraint("Horizontal", 3))
sketch17.addConstraint(Sketcher.Constraint("Symmetric", 0, 2, 2, 2, -1, 1))
sketch17.addConstraint(Sketcher.Constraint("DistanceX", 1, 1, 1, 2, Q("67.697249 mm")))
sketch17.addConstraint(Sketcher.Constraint("DistanceY", 0, 2, 0, 1, Q("2.28033 mm")))
pad15 = body.newObject("PartDesign::Pad", "Pad014")
pad15.Profile = sketch17
pad15.Type = "UpToFirst"
doc.recompute()

datumplane14 = body.newObject("PartDesign::Plane", "DatumPlane013")
datumplane14.Placement = App.Placement(Vector(0, -4.681135, 11.30126), App.Rotation(Vector(0, 0.923879533, 0.382683432), Vector(-1, 0, 0), Vector(0, -0.382683432, 0.923879533), "ZXY"))
draft14 = body.newObject("PartDesign::Draft", "Draft013")
draft14.Base = (pad15, faces_at(pad15, [(0, -5.494, 10.283), (0, -3.387, 11.156)]))
draft14.NeutralPlane = (datumplane14, [""])
draft14.Angle = 20
draft14.Reversed = False

# Sketch on an angled plane
sketch18 = body.newObject("Sketcher::SketchObject", "Sketch017")
sketch18.Placement = App.Placement(Vector(0, -4.681135, -11.30126), App.Rotation(Vector(1, 0, 0), Vector(0, 0.923879533, -0.382683432), Vector(0, 0.382683432, 0.923879533), "ZXY"))
add_polygon(sketch18, [(-33.8, 1.1), (-33.8, -1.1), (33.8, -1.1), (33.8, 1.1)])  # lines 0-3
sketch18.addConstraint(Sketcher.Constraint("Vertical", 0))
sketch18.addConstraint(Sketcher.Constraint("Horizontal", 1))
sketch18.addConstraint(Sketcher.Constraint("Vertical", 2))
sketch18.addConstraint(Sketcher.Constraint("Horizontal", 3))
sketch18.addConstraint(Sketcher.Constraint("Symmetric", 0, 2, 2, 2, -1, 1))
sketch18.addConstraint(Sketcher.Constraint("DistanceX", 1, 1, 1, 2, Q("67.697249 mm")))
sketch18.addConstraint(Sketcher.Constraint("DistanceY", 0, 2, 0, 1, Q("2.28033 mm")))
pad16 = body.newObject("PartDesign::Pad", "Pad015")
pad16.Profile = sketch18
pad16.Type = "UpToFirst"
doc.recompute()

datumplane15 = body.newObject("PartDesign::Plane", "DatumPlane014")
datumplane15.Placement = App.Placement(Vector(0, -4.681135, -11.30126), App.Rotation(Vector(0, -0.923879533, 0.382683432), Vector(-1, 0, 0), Vector(0, -0.382683432, -0.923879533), "ZXY"))
draft15 = body.newObject("PartDesign::Draft", "Draft014")
draft15.Base = (pad16, faces_at(pad16, [(0, -3.387, -11.156), (0, -5.494, -10.283)]))
draft15.NeutralPlane = (datumplane15, [""])
draft15.Angle = 20
draft15.Reversed = False

# Sketch on an angled plane
sketch19 = body.newObject("Sketcher::SketchObject", "Sketch018")
sketch19.Placement = App.Placement(Vector(0, -11.30126, 4.681135), App.Rotation(Vector(1, 0, 0), Vector(0, -0.382683432, -0.923879533), Vector(0, 0.923879533, -0.382683432), "ZXY"))
add_polygon(sketch19, [(-33.8, 1.1), (-33.8, -1.1), (33.8, -1.1), (33.8, 1.1)])  # lines 0-3
sketch19.addConstraint(Sketcher.Constraint("Vertical", 0))
sketch19.addConstraint(Sketcher.Constraint("Horizontal", 1))
sketch19.addConstraint(Sketcher.Constraint("Vertical", 2))
sketch19.addConstraint(Sketcher.Constraint("Horizontal", 3))
sketch19.addConstraint(Sketcher.Constraint("Symmetric", 0, 2, 2, 2, -1, 1))
sketch19.addConstraint(Sketcher.Constraint("DistanceX", 1, 1, 1, 2, Q("67.697249 mm")))
sketch19.addConstraint(Sketcher.Constraint("DistanceY", 0, 2, 0, 1, Q("2.28033 mm")))
pad17 = body.newObject("PartDesign::Pad", "Pad016")
pad17.Profile = sketch19
pad17.Type = "UpToFirst"
doc.recompute()

datumplane16 = body.newObject("PartDesign::Plane", "DatumPlane015")
datumplane16.Placement = App.Placement(Vector(0, -11.30126, 4.681135), App.Rotation(Vector(0, 0.382683432, 0.923879533), Vector(-1, 0, 0), Vector(0, -0.923879533, 0.382683432), "ZXY"))
draft16 = body.newObject("PartDesign::Draft", "Draft015")
draft16.Base = (pad17, faces_at(pad17, [(0, -11.156, 3.387), (0, -10.283, 5.494)]))
draft16.NeutralPlane = (datumplane16, [""])
draft16.Angle = 20
draft16.Reversed = False

doc.recompute()
